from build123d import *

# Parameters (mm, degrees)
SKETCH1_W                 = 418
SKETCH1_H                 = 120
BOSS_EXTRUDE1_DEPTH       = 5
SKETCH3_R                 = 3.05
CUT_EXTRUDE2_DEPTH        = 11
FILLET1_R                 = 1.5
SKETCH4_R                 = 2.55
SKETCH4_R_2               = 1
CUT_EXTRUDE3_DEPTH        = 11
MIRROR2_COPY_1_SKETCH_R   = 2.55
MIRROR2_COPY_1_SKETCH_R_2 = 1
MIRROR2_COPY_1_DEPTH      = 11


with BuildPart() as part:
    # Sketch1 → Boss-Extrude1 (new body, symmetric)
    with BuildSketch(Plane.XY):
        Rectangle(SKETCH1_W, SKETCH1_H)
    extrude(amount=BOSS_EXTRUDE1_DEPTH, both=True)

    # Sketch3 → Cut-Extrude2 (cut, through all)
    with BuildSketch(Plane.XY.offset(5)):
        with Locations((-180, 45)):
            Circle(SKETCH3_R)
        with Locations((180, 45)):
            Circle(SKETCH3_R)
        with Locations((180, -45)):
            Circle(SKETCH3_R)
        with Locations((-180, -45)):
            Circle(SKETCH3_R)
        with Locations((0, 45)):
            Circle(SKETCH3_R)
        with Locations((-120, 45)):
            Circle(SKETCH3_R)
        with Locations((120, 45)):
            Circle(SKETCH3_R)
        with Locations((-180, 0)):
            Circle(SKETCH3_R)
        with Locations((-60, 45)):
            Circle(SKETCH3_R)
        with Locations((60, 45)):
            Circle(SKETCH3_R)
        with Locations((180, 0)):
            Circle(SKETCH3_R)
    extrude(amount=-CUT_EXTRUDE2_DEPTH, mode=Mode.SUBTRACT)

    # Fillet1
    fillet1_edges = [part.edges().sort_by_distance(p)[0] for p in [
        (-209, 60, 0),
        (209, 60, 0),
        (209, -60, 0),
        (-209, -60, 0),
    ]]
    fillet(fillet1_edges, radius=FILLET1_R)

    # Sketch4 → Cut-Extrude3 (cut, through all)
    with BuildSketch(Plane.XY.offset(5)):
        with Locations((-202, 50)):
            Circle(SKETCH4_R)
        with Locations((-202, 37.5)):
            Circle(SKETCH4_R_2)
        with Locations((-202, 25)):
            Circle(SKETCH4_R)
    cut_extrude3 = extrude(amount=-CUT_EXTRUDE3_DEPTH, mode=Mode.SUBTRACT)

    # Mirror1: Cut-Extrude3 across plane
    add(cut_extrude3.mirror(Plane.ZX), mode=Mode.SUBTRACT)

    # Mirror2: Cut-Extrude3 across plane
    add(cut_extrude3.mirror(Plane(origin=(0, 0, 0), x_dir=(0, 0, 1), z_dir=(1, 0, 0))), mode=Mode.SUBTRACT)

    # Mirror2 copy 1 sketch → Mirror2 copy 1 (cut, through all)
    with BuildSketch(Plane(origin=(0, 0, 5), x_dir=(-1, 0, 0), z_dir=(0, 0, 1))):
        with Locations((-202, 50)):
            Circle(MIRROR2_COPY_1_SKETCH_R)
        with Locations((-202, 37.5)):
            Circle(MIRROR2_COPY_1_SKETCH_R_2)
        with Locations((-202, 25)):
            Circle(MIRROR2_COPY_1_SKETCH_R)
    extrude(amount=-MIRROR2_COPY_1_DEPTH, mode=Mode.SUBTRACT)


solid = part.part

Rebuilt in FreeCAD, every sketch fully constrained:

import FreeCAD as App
import Part
import Sketcher
Q = App.Units.Quantity


def edges_at(feature, points):
    """Names of the edges that pass closest to the given points."""
    edges = feature.Shape.Edges
    near = lambda p: min(range(len(edges)), key=lambda i: edges[i].distToShape(Part.Vertex(*p))[0])
    return sorted({f"Edge{near(p) + 1}" for p in points})


def add_polygon(sketch, points):
    """Adds a closed chain of lines whose ends are joined by coincident constraints."""
    first, n = sketch.GeometryCount, len(points)
    for a, b in zip(points, points[1:] + points[:1]):
        sketch.addGeometry(Part.LineSegment(App.Vector(*a, 0), App.Vector(*b, 0)), False)
    for i in range(n):
        sketch.addConstraint(Sketcher.Constraint("Coincident", first + i, 2, first + (i + 1) % n, 1))

doc = App.newDocument("Part")
body = doc.addObject("PartDesign::Body", "Body")

sketch1 = body.newObject("Sketcher::SketchObject", "Sketch")
sketch1.AttachmentSupport = (doc.getObject("XY_Plane"), [""])
sketch1.MapMode = "FlatFace"
add_polygon(sketch1, [(-209, 60), (-209, -60), (209, -60), (209, 60)])
sketch1.addConstraint(Sketcher.Constraint("Vertical", 0))
sketch1.addConstraint(Sketcher.Constraint("Horizontal", 1))
sketch1.addConstraint(Sketcher.Constraint("Vertical", 2))
sketch1.addConstraint(Sketcher.Constraint("Horizontal", 3))
sketch1.addConstraint(Sketcher.Constraint("Symmetric", 0, 2, 2, 2, -1, 1))
sketch1.addConstraint(Sketcher.Constraint("DistanceX", 1, 1, 1, 2, Q("418 mm")))
sketch1.addConstraint(Sketcher.Constraint("DistanceY", 0, 2, 0, 1, Q("120 mm")))
pad1 = body.newObject("PartDesign::Pad", "Pad")
pad1.Profile = sketch1
pad1.Length = 10
pad1.Midplane = True

sketch2 = body.newObject("Sketcher::SketchObject", "Sketch001")
sketch2.AttachmentSupport = (doc.getObject("XY_Plane"), [""])
sketch2.MapMode = "FlatFace"
sketch2.AttachmentOffset = App.Placement(App.Vector(0, 0, 5), App.Rotation())
sketch2.addGeometry(Part.Circle(App.Vector(-180, 45, 0), App.Vector(0, 0, 1), 3), False)
sketch2.addGeometry(Part.Circle(App.Vector(180, 45, 0), App.Vector(0, 0, 1), 3), False)
sketch2.addGeometry(Part.Circle(App.Vector(180, -45, 0), App.Vector(0, 0, 1), 3), False)
sketch2.addGeometry(Part.Circle(App.Vector(-180, -45, 0), App.Vector(0, 0, 1), 3), False)
sketch2.addGeometry(Part.Circle(App.Vector(0, 45, 0), App.Vector(0, 0, 1), 3), False)
sketch2.addGeometry(Part.Circle(App.Vector(-120, 45, 0), App.Vector(0, 0, 1), 3), False)
sketch2.addGeometry(Part.Circle(App.Vector(120, 45, 0), App.Vector(0, 0, 1), 3), False)
sketch2.addGeometry(Part.Circle(App.Vector(-180, 0, 0), App.Vector(0, 0, 1), 3), False)
sketch2.addGeometry(Part.Circle(App.Vector(-60, 45, 0), App.Vector(0, 0, 1), 3), False)
sketch2.addGeometry(Part.Circle(App.Vector(60, 45, 0), App.Vector(0, 0, 1), 3), False)
sketch2.addGeometry(Part.Circle(App.Vector(180, 0, 0), App.Vector(0, 0, 1), 3), False)
sketch2.addConstraint(Sketcher.Constraint("Equal", 0, 1))
sketch2.addConstraint(Sketcher.Constraint("Equal", 1, 2))
sketch2.addConstraint(Sketcher.Constraint("Equal", 2, 3))
sketch2.addConstraint(Sketcher.Constraint("Equal", 3, 4))
sketch2.addConstraint(Sketcher.Constraint("Equal", 4, 5))
sketch2.addConstraint(Sketcher.Constraint("Equal", 5, 6))
sketch2.addConstraint(Sketcher.Constraint("Equal", 6, 7))
sketch2.addConstraint(Sketcher.Constraint("Equal", 7, 8))
sketch2.addConstraint(Sketcher.Constraint("Equal", 8, 9))
sketch2.addConstraint(Sketcher.Constraint("Equal", 9, 10))
sketch2.addConstraint(Sketcher.Constraint("Symmetric", 0, 3, 2, 3, -1, 1))
sketch2.addConstraint(Sketcher.Constraint("Symmetric", 1, 3, 3, 3, -1, 1))
sketch2.addConstraint(Sketcher.Constraint("Symmetric", 7, 3, 10, 3, -1, 1))
sketch2.addConstraint(Sketcher.Constraint("Symmetric", 0, 3, 1, 3, -2))
sketch2.addConstraint(Sketcher.Constraint("Symmetric", 5, 3, 6, 3, -2))
sketch2.addConstraint(Sketcher.Constraint("Symmetric", 8, 3, 9, 3, -2))
sketch2.addConstraint(Sketcher.Constraint("PointOnObject", 4, 3, -2))
sketch2.addConstraint(Sketcher.Constraint("PointOnObject", 7, 3, -1))
sketch2.addConstraint(Sketcher.Constraint("Horizontal", 1, 3, 4, 3))
sketch2.addConstraint(Sketcher.Constraint("Horizontal", 4, 3, 5, 3))
sketch2.addConstraint(Sketcher.Constraint("Horizontal", 6, 3, 8, 3))
sketch2.addConstraint(Sketcher.Constraint("Vertical", 3, 3, 7, 3))
sketch2.addConstraint(Sketcher.Constraint("Diameter", 0, Q("6.1 mm")))
sketch2.addConstraint(Sketcher.Constraint("DistanceX", 0, 3, -1, 1, Q("180 mm")))
sketch2.addConstraint(Sketcher.Constraint("DistanceY", -1, 1, 0, 3, Q("45 mm")))
sketch2.addConstraint(Sketcher.Constraint("DistanceX", 5, 3, -1, 1, Q("120 mm")))
sketch2.addConstraint(Sketcher.Constraint("DistanceX", 8, 3, -1, 1, Q("60 mm")))
pocket1 = body.newObject("PartDesign::Pocket", "Pocket")
pocket1.Profile = sketch2
pocket1.Type = "ThroughAll"
doc.recompute()

fillet = body.newObject("PartDesign::Fillet", "Fillet")
fillet.Base = (pocket1, edges_at(pocket1, [
    (-209, 60, 0),
    (209, 60, 0),
    (209, -60, 0),
    (-209, -60, 0),
]))
fillet.Radius = 1.5

sketch3 = body.newObject("Sketcher::SketchObject", "Sketch002")
sketch3.AttachmentSupport = (doc.getObject("XY_Plane"), [""])
sketch3.MapMode = "FlatFace"
sketch3.AttachmentOffset = App.Placement(App.Vector(0, 0, 5), App.Rotation())
sketch3.addGeometry(Part.Circle(App.Vector(-202, 50, 0), App.Vector(0, 0, 1), 2.5), False)
sketch3.addGeometry(Part.Circle(App.Vector(-202, 37.5, 0), App.Vector(0, 0, 1), 1), False)
sketch3.addGeometry(Part.Circle(App.Vector(-202, 25, 0), App.Vector(0, 0, 1), 2.5), False)
sketch3.addConstraint(Sketcher.Constraint("Equal", 0, 2))
sketch3.addConstraint(Sketcher.Constraint("Vertical", 0, 3, 1, 3))
sketch3.addConstraint(Sketcher.Constraint("Vertical", 1, 3, 2, 3))
sketch3.addConstraint(Sketcher.Constraint("Diameter", 1, Q("2 mm")))
sketch3.addConstraint(Sketcher.Constraint("Diameter", 0, Q("5.1 mm")))
sketch3.addConstraint(Sketcher.Constraint("DistanceX", 0, 3, -1, 1, Q("202 mm")))
sketch3.addConstraint(Sketcher.Constraint("DistanceY", -1, 1, 0, 3, Q("50 mm")))
sketch3.addConstraint(Sketcher.Constraint("DistanceY", -1, 1, 2, 3, Q("25 mm")))
sketch3.addConstraint(Sketcher.Constraint("DistanceY", -1, 1, 1, 3, Q("37.5 mm")))
pocket2 = body.newObject("PartDesign::Pocket", "Pocket001")
pocket2.Profile = sketch3
pocket2.Type = "ThroughAll"
doc.recompute()

mirrored = body.newObject("PartDesign::Mirrored", "Mirrored")
mirrored.Originals = [pocket2]
mirrored.MirrorPlane = (doc.getObject("XZ_Plane"), [""])
body.Tip = mirrored
doc.recompute()

mirrored2 = body.newObject("PartDesign::Mirrored", "Mirrored001")
mirrored2.Originals = [pocket2]
mirrored2.MirrorPlane = (doc.getObject("YZ_Plane"), [""])
body.Tip = mirrored2

sketch4 = body.newObject("Sketcher::SketchObject", "Sketch003")
sketch4.AttachmentSupport = (doc.getObject("XY_Plane"), [""])
sketch4.MapMode = "FlatFace"
sketch4.AttachmentOffset = App.Placement(App.Vector(0, 0, 5), App.Rotation())
sketch4.addGeometry(Part.Circle(App.Vector(202, -50, 0), App.Vector(0, 0, 1), 2.5), False)
sketch4.addGeometry(Part.Circle(App.Vector(202, -37.5, 0), App.Vector(0, 0, 1), 1), False)
sketch4.addGeometry(Part.Circle(App.Vector(202, -25, 0), App.Vector(0, 0, 1), 2.5), False)
sketch4.addConstraint(Sketcher.Constraint("Equal", 0, 2))
sketch4.addConstraint(Sketcher.Constraint("Vertical", 0, 3, 1, 3))
sketch4.addConstraint(Sketcher.Constraint("Vertical", 1, 3, 2, 3))
sketch4.addConstraint(Sketcher.Constraint("Diameter", 1, Q("2 mm")))
sketch4.addConstraint(Sketcher.Constraint("Diameter", 0, Q("5.1 mm")))
sketch4.addConstraint(Sketcher.Constraint("DistanceX", -1, 1, 0, 3, Q("202 mm")))
sketch4.addConstraint(Sketcher.Constraint("DistanceY", 0, 3, -1, 1, Q("50 mm")))
sketch4.addConstraint(Sketcher.Constraint("DistanceY", 2, 3, -1, 1, Q("25 mm")))
sketch4.addConstraint(Sketcher.Constraint("DistanceY", 1, 3, -1, 1, Q("37.5 mm")))
pocket3 = body.newObject("PartDesign::Pocket", "Pocket002")
pocket3.Profile = sketch4
pocket3.Type = "ThroughAll"

doc.recompute()
